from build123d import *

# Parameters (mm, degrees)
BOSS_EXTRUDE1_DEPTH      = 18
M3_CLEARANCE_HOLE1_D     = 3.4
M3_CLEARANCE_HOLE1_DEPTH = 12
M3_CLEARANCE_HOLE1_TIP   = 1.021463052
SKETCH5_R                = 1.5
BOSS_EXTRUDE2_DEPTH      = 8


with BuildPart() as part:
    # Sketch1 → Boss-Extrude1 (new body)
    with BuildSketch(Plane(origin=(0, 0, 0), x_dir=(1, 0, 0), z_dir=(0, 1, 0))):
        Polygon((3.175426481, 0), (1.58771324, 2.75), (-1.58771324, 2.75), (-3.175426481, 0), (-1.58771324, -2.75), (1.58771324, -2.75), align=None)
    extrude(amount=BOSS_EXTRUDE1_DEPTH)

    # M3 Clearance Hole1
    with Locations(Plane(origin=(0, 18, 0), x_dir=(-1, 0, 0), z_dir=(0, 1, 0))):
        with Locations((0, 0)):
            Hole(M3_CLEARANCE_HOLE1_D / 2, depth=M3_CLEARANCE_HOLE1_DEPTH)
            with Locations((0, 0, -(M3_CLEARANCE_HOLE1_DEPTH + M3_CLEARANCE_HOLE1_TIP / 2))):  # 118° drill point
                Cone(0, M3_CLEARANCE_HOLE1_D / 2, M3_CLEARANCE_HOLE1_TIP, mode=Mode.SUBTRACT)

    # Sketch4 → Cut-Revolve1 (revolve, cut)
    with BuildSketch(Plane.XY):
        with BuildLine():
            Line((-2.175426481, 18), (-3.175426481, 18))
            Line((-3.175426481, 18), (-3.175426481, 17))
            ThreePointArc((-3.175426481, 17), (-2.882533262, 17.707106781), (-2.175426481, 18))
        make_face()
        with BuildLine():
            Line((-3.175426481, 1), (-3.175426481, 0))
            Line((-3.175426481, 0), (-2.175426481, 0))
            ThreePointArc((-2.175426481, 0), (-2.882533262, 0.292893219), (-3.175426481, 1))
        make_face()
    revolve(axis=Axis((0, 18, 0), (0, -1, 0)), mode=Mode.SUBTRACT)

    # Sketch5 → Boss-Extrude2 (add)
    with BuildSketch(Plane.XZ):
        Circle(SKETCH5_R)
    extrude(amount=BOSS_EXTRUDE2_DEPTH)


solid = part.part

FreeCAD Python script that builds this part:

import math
import FreeCAD as App
import Part
import Sketcher
from FreeCAD import Vector
Q = App.Units.Quantity


def add_polygon(sketch, points):
    """Adds a closed chain of lines whose ends are joined by coincident constraints."""
    first, n = sketch.GeometryCount, len(points)
    for a, b in zip(points, points[1:] + points[:1]):
        sketch.addGeometry(Part.LineSegment(App.Vector(*a, 0), App.Vector(*b, 0)), False)
    for i in range(n):
        sketch.addConstraint(Sketcher.Constraint("Coincident", first + i, 2, first + (i + 1) % n, 1))

doc = App.newDocument("Part")
body = doc.addObject("PartDesign::Body", "Body")

sketch1 = body.newObject("Sketcher::SketchObject", "Sketch")
sketch1.AttachmentSupport = (doc.getObject("XZ_Plane"), [""])
sketch1.MapMode = "FlatFace"
add_polygon(sketch1, [(3.2, 0), (1.6, -2.8), (-1.6, -2.8), (-3.2, 0), (-1.6, 2.8), (1.6, 2.8)])
sketch1.addConstraint([
    Sketcher.Constraint("Horizontal", 1),
    Sketcher.Constraint("Horizontal", 4),
    Sketcher.Constraint("Symmetric", 0, 2, 3, 2, -1, 1),
    Sketcher.Constraint("Symmetric", 2, 2, 5, 2, -1, 1),
    Sketcher.Constraint("PointOnObject", 2, 2, -1),
    Sketcher.Constraint("Parallel", 2, 5),
    Sketcher.Constraint("Vertical", 1, 2, 3, 2),
    Sketcher.Constraint("Angle", 0, Q("-120 deg")),
    Sketcher.Constraint("DistanceY", 1, 2, 3, 2, 5.5),
    Sketcher.Constraint("DistanceX", 1, 2, 1, 1, 3.175426),
])
pad1 = body.newObject("PartDesign::Pad", "Pad")
pad1.Profile = sketch1
pad1.Length = 18
pad1.Reversed = True

sketch2 = body.newObject("Sketcher::SketchObject", "Sketch001")
sketch2.AttachmentSupport = (doc.getObject("XZ_Plane"), [""])
sketch2.MapMode = "FlatFace"
sketch2.AttachmentOffset = App.Placement(Vector(0, 0, -18), App.Rotation())
sketch2.addGeometry(Part.Circle(Vector(0, 0, 0), Vector(0, 0, 1), 1.7), False)
sketch2.addConstraint([
    Sketcher.Constraint("Coincident", 0, 3, -1, 1),
    Sketcher.Constraint("Diameter", 0, 3.4),
])
doc.recompute()
hole = body.newObject("PartDesign::Hole", "Hole")
hole.Profile = sketch2
hole.ThreadType = "None"
hole.Diameter = 3.4
hole.DepthType = "Dimension"
hole.Depth = 12
hole.DrillPoint = "Angled"
hole.DrillPointAngle = 118
hole.Reversed = True

sketch3 = body.newObject("Sketcher::SketchObject", "Sketch002")
sketch3.AttachmentSupport = (doc.getObject("XY_Plane"), [""])
sketch3.MapMode = "FlatFace"
sketch3.addGeometry([
    Part.LineSegment(Vector(-2.2, 18, 0), Vector(-3.2, 18, 0)),
    Part.LineSegment(Vector(-3.2, 18, 0), Vector(-3.2, 17, 0)),
    Part.ArcOfCircle(Part.Circle(Vector(-2.2, 17, 0), Vector(0, 0, 1), 1), math.radians(90), math.radians(180)),
    Part.LineSegment(Vector(-3.2, 1, 0), Vector(-3.2, 0, 0)),
    Part.LineSegment(Vector(-3.2, 0, 0), Vector(-2.2, 0, 0)),
    Part.ArcOfCircle(Part.Circle(Vector(-2.2, 1, 0), Vector(0, 0, 1), 1), math.radians(-180), math.radians(-90)),
], False)
sketch3.addConstraint([
    Sketcher.Constraint("Coincident", 0, 2, 1, 1),
    Sketcher.Constraint("Tangent", 1, 2, 2, 2),
    Sketcher.Constraint("Tangent", 2, 1, 0, 1),
    Sketcher.Constraint("Coincident", 3, 2, 4, 1),
    Sketcher.Constraint("Tangent", 4, 2, 5, 2),
    Sketcher.Constraint("Tangent", 5, 1, 3, 1),
    Sketcher.Constraint("Horizontal", 0),
    Sketcher.Constraint("Vertical", 1),
    Sketcher.Constraint("Vertical", 3),
    Sketcher.Constraint("Horizontal", 4),
    Sketcher.Constraint("Equal", 2, 5),
    Sketcher.Constraint("PointOnObject", 3, 2, -1),
    Sketcher.Constraint("Vertical", 2, 3, 5, 3),
    Sketcher.Constraint("Radius", 2, 1.0),
    Sketcher.Constraint("DistanceY", -1, 1, 2, 3, 17.0),
    Sketcher.Constraint("DistanceX", 2, 3, -1, 1, 2.175426),
])
groove = body.newObject("PartDesign::Groove", "Groove")
groove.Profile = sketch3
groove.ReferenceAxis = (sketch3, ["V_Axis"])
groove.Angle = 360

sketch4 = body.newObject("Sketcher::SketchObject", "Sketch003")
sketch4.AttachmentSupport = (doc.getObject("XZ_Plane"), [""])
sketch4.MapMode = "FlatFace"
sketch4.addGeometry(Part.Circle(Vector(0, 0, 0), Vector(0, 0, 1), 1.5), False)
sketch4.addConstraint([
    Sketcher.Constraint("Coincident", 0, 3, -1, 1),
    Sketcher.Constraint("Diameter", 0, 3.0),
])
pad2 = body.newObject("PartDesign::Pad", "Pad001")
pad2.Profile = sketch4
pad2.Length = 8

doc.recompute()
